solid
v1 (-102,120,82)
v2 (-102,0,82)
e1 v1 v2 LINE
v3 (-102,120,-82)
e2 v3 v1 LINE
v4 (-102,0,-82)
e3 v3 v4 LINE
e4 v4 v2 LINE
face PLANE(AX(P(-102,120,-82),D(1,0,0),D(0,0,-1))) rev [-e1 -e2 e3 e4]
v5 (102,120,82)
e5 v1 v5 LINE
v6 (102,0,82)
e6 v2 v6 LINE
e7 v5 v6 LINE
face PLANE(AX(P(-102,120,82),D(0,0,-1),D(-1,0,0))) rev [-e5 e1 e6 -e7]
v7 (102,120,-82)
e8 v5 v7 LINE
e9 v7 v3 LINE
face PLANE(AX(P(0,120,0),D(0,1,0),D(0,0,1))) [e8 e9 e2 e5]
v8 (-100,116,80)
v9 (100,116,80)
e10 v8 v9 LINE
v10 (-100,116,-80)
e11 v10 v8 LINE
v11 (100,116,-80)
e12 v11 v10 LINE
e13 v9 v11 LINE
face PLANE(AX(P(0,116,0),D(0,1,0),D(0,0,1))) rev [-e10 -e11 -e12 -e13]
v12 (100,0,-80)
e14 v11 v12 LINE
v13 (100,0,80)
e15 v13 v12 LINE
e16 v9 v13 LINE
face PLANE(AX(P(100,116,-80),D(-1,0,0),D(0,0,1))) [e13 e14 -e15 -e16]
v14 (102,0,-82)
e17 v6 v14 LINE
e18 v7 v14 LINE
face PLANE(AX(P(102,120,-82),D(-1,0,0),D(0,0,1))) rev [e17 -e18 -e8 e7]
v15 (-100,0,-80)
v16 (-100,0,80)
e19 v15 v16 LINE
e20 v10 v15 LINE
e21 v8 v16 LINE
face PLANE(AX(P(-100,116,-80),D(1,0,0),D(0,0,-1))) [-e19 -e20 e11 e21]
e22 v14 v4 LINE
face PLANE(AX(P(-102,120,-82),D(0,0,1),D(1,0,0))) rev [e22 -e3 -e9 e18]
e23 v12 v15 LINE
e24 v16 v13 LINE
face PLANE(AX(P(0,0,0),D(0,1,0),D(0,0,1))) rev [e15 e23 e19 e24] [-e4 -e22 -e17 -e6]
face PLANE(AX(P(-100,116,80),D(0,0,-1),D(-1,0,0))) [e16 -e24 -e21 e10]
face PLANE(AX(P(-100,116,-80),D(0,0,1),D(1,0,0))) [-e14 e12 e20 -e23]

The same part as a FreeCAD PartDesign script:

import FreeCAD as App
import Part
import Sketcher
from FreeCAD import Vector
Q = App.Units.Quantity


def add_polygon(sketch, points):
    """Adds a closed chain of lines whose ends are joined by coincident constraints."""
    first, n = sketch.GeometryCount, len(points)
    for a, b in zip(points, points[1:] + points[:1]):
        sketch.addGeometry(Part.LineSegment(App.Vector(*a, 0), App.Vector(*b, 0)), False)
    for i in range(n):
        sketch.addConstraint(Sketcher.Constraint("Coincident", first + i, 2, first + (i + 1) % n, 1))

doc = App.newDocument("Part")
body = doc.addObject("PartDesign::Body", "Body")

sketch1 = doc.addObject("Sketcher::SketchObject", "Sketch")
body.addObject(sketch1)
sketch1.AttachmentSupport = (doc.XZ_Plane, [""])
sketch1.MapMode = "FlatFace"
add_polygon(sketch1, [(-102, -82), (-102, 82), (102, 82), (102, -82)])
sketch1.addConstraint(Sketcher.Constraint("Vertical", 0))
sketch1.addConstraint(Sketcher.Constraint("Horizontal", 1))
sketch1.addConstraint(Sketcher.Constraint("Vertical", 2))
sketch1.addConstraint(Sketcher.Constraint("Horizontal", 3))
sketch1.addConstraint(Sketcher.Constraint("Symmetric", 0, 2, 2, 2, -1, 1))
sketch1.addConstraint(Sketcher.Constraint("DistanceX", 1, 1, 1, 2, Q("204 mm")))
sketch1.addConstraint(Sketcher.Constraint("DistanceY", 0, 1, 0, 2, Q("164 mm")))
pad1 = doc.addObject("PartDesign::Pad", "Pad")
body.addObject(pad1)
pad1.Profile = sketch1
pad1.Length = 120
pad1.Reversed = True

sketch2 = doc.addObject("Sketcher::SketchObject", "Sketch001")
body.addObject(sketch2)
sketch2.AttachmentSupport = (doc.XZ_Plane, [""])
sketch2.MapMode = "FlatFace"
add_polygon(sketch2, [(-100, -80), (-100, 80), (100, 80), (100, -80)])
sketch2.addConstraint(Sketcher.Constraint("Vertical", 0))
sketch2.addConstraint(Sketcher.Constraint("Horizontal", 1))
sketch2.addConstraint(Sketcher.Constraint("Vertical", 2))
sketch2.addConstraint(Sketcher.Constraint("Horizontal", 3))
sketch2.addConstraint(Sketcher.Constraint("Symmetric", 0, 2, 2, 2, -1, 1))
sketch2.addConstraint(Sketcher.Constraint("DistanceX", 1, 1, 1, 2, Q("200 mm")))
sketch2.addConstraint(Sketcher.Constraint("DistanceY", 0, 1, 0, 2, Q("160 mm")))
pocket1 = doc.addObject("PartDesign::Pocket", "Pocket")
body.addObject(pocket1)
pocket1.Profile = sketch2
pocket1.Length = 116

doc.recompute()
